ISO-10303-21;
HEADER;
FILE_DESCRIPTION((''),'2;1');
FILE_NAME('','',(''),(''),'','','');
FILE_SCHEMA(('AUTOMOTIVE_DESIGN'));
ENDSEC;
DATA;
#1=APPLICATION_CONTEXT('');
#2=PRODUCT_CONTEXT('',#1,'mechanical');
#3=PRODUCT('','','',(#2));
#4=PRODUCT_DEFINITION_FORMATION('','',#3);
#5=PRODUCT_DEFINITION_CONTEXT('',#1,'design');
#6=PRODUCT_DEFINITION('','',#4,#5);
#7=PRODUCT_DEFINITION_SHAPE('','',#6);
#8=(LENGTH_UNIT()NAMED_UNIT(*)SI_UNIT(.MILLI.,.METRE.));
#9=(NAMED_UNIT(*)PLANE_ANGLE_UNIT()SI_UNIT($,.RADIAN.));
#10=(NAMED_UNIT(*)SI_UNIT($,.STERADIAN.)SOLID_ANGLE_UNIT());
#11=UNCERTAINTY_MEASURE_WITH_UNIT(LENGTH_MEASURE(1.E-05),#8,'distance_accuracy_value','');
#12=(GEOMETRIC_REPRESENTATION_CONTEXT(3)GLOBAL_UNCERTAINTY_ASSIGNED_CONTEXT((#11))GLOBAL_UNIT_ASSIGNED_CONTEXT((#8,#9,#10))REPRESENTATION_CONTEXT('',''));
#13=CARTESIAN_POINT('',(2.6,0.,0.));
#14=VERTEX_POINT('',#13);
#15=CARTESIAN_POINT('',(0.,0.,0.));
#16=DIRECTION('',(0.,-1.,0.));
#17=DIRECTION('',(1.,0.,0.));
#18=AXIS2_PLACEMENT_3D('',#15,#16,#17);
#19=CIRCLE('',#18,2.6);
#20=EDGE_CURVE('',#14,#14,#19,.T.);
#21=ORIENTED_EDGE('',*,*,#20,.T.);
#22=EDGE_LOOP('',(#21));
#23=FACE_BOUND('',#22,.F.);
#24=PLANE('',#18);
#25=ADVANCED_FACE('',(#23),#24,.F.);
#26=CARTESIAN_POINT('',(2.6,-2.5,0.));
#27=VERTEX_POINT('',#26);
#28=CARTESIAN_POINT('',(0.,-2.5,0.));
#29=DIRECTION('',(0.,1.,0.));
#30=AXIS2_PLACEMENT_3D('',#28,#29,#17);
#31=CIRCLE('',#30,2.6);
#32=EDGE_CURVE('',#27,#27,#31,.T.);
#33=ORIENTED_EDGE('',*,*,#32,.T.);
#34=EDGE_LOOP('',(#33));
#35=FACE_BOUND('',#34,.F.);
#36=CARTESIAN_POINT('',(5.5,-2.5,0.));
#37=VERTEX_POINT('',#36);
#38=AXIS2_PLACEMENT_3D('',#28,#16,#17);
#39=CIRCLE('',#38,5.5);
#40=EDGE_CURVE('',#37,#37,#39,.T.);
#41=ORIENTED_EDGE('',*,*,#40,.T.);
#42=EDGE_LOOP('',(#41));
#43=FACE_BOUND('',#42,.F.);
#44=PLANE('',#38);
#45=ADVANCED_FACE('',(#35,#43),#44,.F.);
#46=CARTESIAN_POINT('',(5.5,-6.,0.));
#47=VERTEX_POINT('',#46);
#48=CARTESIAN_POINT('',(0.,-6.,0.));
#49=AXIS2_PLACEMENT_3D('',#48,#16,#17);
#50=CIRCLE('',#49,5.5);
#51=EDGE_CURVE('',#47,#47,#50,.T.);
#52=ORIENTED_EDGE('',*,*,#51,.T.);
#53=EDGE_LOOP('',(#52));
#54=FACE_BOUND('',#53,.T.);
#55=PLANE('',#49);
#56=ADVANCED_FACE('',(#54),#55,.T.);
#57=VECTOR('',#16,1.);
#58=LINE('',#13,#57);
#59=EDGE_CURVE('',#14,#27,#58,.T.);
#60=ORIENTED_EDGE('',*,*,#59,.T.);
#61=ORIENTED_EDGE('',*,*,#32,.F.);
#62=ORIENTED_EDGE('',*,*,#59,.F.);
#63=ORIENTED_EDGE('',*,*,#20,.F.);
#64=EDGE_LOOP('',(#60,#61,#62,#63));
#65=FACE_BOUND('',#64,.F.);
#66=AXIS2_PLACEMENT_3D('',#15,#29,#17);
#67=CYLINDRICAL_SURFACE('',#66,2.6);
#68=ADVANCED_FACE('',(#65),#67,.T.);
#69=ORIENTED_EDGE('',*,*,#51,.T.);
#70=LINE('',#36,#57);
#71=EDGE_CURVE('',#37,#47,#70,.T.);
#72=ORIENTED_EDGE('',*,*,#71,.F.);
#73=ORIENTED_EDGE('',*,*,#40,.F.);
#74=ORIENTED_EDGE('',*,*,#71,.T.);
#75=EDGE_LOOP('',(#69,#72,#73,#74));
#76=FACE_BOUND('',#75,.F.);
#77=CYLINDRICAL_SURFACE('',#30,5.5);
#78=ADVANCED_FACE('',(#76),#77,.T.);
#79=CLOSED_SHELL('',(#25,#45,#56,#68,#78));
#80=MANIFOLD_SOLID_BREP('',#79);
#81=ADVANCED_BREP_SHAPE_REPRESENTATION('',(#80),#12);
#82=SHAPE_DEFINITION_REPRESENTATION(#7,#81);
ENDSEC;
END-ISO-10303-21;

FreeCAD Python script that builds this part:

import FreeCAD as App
import Part
import Sketcher
Q = App.Units.Quantity

doc = App.newDocument("Part")
params = doc.addObject("Spreadsheet::Sheet", "Params")
for row, (alias, value) in enumerate([
    ("sketch1_diameter", "5.2 mm"),
    ("pad1_length", "6 mm"),
    ("sketch2_diameter", "11 mm"),
    ("pad2_length", "3.5 mm"),
], start=1):
    params.set(f"A{row}", alias)
    params.set(f"B{row}", "=" + value)
    params.setAlias(f"B{row}", alias)

body = doc.addObject("PartDesign::Body", "Body")

sketch1 = body.newObject("Sketcher::SketchObject", "Sketch")
sketch1.AttachmentSupport = (doc.getObject("XZ_Plane"), [""])
sketch1.MapMode = "FlatFace"
sketch1.addGeometry(Part.Circle(App.Vector(0, 0, 0), App.Vector(0, 0, 1), 2.6), False)
sketch1.addConstraint(Sketcher.Constraint("Coincident", 0, 3, -1, 1))
sketch1.addConstraint(Sketcher.Constraint("Diameter", 0, Q("5.2 mm")))
sketch1.setExpression("Constraints[1]", "Params.sketch1_diameter")
pad1 = body.newObject("PartDesign::Pad", "Pad")
pad1.Profile = sketch1
pad1.setExpression("Length", "Params.pad1_length")
body2 = doc.addObject("PartDesign::Body", "Body001")

sketch2 = body2.newObject("Sketcher::SketchObject", "Sketch001")
sketch2.AttachmentSupport = (doc.getObject("XZ_Plane001"), [""])
sketch2.MapMode = "FlatFace"
sketch2.AttachmentOffset = App.Placement(App.Vector(0, 0, 2.5), App.Rotation())
sketch2.addGeometry(Part.Circle(App.Vector(0, 0, 0), App.Vector(0, 0, 1), 5.5), False)
sketch2.addConstraint(Sketcher.Constraint("Coincident", 0, 3, -1, 1))
sketch2.addConstraint(Sketcher.Constraint("Diameter", 0, Q("11 mm")))
sketch2.setExpression("Constraints[1]", "Params.sketch2_diameter")
pad2 = body2.newObject("PartDesign::Pad", "Pad001")
pad2.Profile = sketch2
pad2.setExpression("Length", "Params.pad2_length")
doc.recompute()

boolean = body2.newObject("PartDesign::Boolean", "Boolean")
boolean.Type = "Fuse"
boolean.addObjects([body])

doc.recompute()
